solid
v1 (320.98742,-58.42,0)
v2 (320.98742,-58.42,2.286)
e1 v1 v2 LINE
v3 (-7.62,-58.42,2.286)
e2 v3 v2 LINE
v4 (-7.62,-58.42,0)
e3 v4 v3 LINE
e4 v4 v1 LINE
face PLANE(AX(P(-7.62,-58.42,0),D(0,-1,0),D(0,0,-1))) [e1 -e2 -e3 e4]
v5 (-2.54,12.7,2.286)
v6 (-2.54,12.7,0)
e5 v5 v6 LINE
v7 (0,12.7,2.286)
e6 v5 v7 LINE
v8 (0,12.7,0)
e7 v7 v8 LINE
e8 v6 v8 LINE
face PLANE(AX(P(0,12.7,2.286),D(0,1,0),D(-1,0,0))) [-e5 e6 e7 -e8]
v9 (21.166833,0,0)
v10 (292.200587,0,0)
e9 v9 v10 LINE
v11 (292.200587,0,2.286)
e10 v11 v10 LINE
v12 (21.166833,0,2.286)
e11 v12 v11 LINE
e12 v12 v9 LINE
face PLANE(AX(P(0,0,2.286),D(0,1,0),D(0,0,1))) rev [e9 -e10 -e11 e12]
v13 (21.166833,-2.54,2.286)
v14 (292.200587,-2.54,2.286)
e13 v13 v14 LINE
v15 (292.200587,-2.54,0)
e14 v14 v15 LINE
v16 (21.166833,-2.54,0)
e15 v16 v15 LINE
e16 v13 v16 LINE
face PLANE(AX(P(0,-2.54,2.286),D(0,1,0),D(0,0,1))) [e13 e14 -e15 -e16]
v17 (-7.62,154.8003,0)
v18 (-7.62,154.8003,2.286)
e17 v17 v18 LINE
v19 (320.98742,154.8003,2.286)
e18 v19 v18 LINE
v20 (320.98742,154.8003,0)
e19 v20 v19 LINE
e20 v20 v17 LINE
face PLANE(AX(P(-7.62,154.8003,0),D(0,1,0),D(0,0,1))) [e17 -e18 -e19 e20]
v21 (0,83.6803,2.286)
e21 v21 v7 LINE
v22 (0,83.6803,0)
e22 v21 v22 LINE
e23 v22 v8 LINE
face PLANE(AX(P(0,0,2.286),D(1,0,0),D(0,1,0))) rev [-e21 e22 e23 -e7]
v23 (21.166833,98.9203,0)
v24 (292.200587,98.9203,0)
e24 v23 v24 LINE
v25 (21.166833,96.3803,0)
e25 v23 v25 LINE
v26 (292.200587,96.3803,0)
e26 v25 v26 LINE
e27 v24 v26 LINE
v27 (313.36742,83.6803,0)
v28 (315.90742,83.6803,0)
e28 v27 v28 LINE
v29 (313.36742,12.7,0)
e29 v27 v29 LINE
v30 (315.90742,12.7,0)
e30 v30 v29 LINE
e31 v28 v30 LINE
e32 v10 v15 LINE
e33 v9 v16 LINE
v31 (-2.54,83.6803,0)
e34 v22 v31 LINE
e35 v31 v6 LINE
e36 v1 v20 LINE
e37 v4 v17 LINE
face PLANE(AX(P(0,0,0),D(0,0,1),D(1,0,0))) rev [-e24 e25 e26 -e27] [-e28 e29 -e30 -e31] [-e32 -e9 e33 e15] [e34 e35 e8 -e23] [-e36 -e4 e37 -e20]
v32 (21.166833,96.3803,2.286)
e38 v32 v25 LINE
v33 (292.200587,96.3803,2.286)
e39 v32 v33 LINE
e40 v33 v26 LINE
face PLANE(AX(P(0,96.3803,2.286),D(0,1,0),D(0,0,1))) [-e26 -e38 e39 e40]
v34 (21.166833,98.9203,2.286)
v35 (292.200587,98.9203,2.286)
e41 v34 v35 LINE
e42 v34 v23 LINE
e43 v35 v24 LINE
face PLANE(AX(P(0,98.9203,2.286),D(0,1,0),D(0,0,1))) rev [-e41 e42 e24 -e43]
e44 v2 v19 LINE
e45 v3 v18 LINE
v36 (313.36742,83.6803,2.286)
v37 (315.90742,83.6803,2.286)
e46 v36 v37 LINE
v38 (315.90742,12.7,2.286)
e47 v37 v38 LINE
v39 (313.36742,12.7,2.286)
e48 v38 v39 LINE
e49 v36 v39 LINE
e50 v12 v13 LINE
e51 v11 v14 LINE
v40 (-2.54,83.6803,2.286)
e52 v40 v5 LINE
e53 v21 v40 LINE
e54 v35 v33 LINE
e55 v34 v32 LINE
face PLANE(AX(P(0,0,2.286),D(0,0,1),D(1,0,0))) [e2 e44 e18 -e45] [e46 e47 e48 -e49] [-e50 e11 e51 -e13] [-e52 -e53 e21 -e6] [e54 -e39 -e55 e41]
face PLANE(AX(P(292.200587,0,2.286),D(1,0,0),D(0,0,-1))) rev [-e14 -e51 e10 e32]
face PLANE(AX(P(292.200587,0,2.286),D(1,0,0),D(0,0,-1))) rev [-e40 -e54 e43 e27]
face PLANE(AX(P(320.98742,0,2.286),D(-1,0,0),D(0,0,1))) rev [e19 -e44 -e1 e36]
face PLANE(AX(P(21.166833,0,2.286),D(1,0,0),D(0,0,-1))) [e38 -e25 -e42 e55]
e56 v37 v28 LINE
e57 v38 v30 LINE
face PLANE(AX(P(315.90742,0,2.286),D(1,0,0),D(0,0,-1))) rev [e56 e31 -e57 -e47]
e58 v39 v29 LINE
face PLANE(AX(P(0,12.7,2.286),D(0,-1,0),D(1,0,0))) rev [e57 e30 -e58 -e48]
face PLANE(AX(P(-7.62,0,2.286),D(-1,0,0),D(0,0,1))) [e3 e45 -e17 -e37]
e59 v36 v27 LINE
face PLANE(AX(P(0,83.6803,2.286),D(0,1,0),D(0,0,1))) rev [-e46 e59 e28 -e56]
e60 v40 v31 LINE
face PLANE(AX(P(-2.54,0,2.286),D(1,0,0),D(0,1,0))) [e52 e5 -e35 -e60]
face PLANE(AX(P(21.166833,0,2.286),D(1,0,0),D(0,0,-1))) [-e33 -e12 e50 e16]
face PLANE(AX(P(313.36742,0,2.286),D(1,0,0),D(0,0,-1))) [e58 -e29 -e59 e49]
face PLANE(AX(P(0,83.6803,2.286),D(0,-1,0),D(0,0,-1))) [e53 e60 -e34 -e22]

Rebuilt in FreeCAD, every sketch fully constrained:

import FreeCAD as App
import Part
import Sketcher
Q = App.Units.Quantity


def add_polygon(sketch, points):
    """Adds a closed chain of lines whose ends are joined by coincident constraints."""
    first, n = sketch.GeometryCount, len(points)
    for a, b in zip(points, points[1:] + points[:1]):
        sketch.addGeometry(Part.LineSegment(App.Vector(*a, 0), App.Vector(*b, 0)), False)
    for i in range(n):
        sketch.addConstraint(Sketcher.Constraint("Coincident", first + i, 2, first + (i + 1) % n, 1))

doc = App.newDocument("Part")
body = doc.addObject("PartDesign::Body", "Body")

sketch1 = body.newObject("Sketcher::SketchObject", "Sketch")
sketch1.AttachmentSupport = (doc.getObject("XY_Plane"), [""])
sketch1.MapMode = "FlatFace"
add_polygon(sketch1, [(-7.6, 104), (-7.6, -7.6), (321, -7.6), (321, 104)])
add_polygon(sketch1, [(292.2, -2.5), (21.2, -2.5), (21.2, 0), (292.2, 0)])
add_polygon(sketch1, [(0, 12.7), (-2.5, 12.7), (-2.5, 83.7), (0, 83.7)])
add_polygon(sketch1, [(292.2, 96.4), (21.2, 96.4), (21.2, 98.9), (292.2, 98.9)])
add_polygon(sketch1, [(315.9, 12.7), (313.4, 12.7), (313.4, 83.7), (315.9, 83.7)])
sketch1.addConstraint([
    Sketcher.Constraint("Vertical", 0),
    Sketcher.Constraint("Horizontal", 1),
    Sketcher.Constraint("Vertical", 2),
    Sketcher.Constraint("Horizontal", 3),
    Sketcher.Constraint("Horizontal", 4),
    Sketcher.Constraint("Vertical", 5),
    Sketcher.Constraint("Horizontal", 6),
    Sketcher.Constraint("Vertical", 7),
    Sketcher.Constraint("Horizontal", 8),
    Sketcher.Constraint("Vertical", 9),
    Sketcher.Constraint("Horizontal", 10),
    Sketcher.Constraint("Vertical", 11),
    Sketcher.Constraint("Horizontal", 12),
    Sketcher.Constraint("Vertical", 13),
    Sketcher.Constraint("Horizontal", 14),
    Sketcher.Constraint("Vertical", 15),
    Sketcher.Constraint("Horizontal", 16),
    Sketcher.Constraint("Vertical", 17),
    Sketcher.Constraint("Horizontal", 18),
    Sketcher.Constraint("Vertical", 19),
    Sketcher.Constraint("PointOnObject", 5, 2, -1),
    Sketcher.Constraint("PointOnObject", 10, 2, -2),
    Sketcher.Constraint("Horizontal", 11, 2, 16, 2),
    Sketcher.Constraint("Horizontal", 10, 2, 17, 2),
    Sketcher.Constraint("Vertical", 5, 2, 12, 2),
    Sketcher.Constraint("Vertical", 7, 2, 14, 2),
    Sketcher.Constraint("Equal", 10, 16),
    Sketcher.Constraint("Equal", 18, 5),
    Sketcher.Constraint("Equal", 7, 13),
    Sketcher.Constraint("DistanceX", 8, 2, 8, 1, Q("0.1 in")),
    Sketcher.Constraint("DistanceX", 0, 2, -1, 1, Q("0.3 in")),
    Sketcher.Constraint("DistanceY", 0, 2, -1, 1, Q("0.3 in")),
    Sketcher.Constraint("DistanceY", -1, 1, 8, 2, Q("0.5 in")),
    Sketcher.Constraint("DistanceY", 9, 2, 3, 2, Q("0.8 in")),
    Sketcher.Constraint("DistanceY", 10, 2, 12, 2, Q("0.5 in")),
    Sketcher.Constraint("DistanceX", 16, 2, 1, 2, Q("0.3 in")),
    Sketcher.Constraint("DistanceX", 1, 1, 1, 2, Q("12.9373 in")),
    Sketcher.Constraint("DistanceY", 0, 2, 0, 1, Q("4.3945 in")),
    Sketcher.Constraint("DistanceX", 4, 2, 4, 1, 271.033754),
    Sketcher.Constraint("DistanceX", -1, 1, 4, 2, 21.166833),
])
pad1 = body.newObject("PartDesign::Pad", "Pad")
pad1.Profile = sketch1
pad1.Length = Q("0.09 in")

sketch2 = body.newObject("Sketcher::SketchObject", "Sketch001")
sketch2.AttachmentSupport = (doc.getObject("XY_Plane"), [""])
sketch2.MapMode = "FlatFace"
sketch2.AttachmentOffset = App.Placement(App.Vector(0, 0, 0.09 * 25.4), App.Rotation())
add_polygon(sketch2, [(-8, 155), (-8, 104), (321, 104), (321, 155)])
add_polygon(sketch2, [(-8, -8), (-8, -58), (321, -58), (321, -8)])
sketch2.addConstraint([
    Sketcher.Constraint("Vertical", 0),
    Sketcher.Constraint("Horizontal", 1),
    Sketcher.Constraint("Vertical", 2),
    Sketcher.Constraint("Horizontal", 3),
    Sketcher.Constraint("Vertical", 4),
    Sketcher.Constraint("Horizontal", 5),
    Sketcher.Constraint("Vertical", 6),
    Sketcher.Constraint("Horizontal", 7),
    Sketcher.Constraint("Vertical", 3, 2, 4, 2),
    Sketcher.Constraint("Vertical", 2, 2, 5, 2),
    Sketcher.Constraint("Equal", 2, 4),
    Sketcher.Constraint("DistanceY", 0, 2, 0, 1, Q("2 in")),
    Sketcher.Constraint("DistanceX", 0, 2, -1, 1, Q("0.3 in")),
    Sketcher.Constraint("DistanceY", 4, 2, -1, 1, Q("2.3 in")),
    Sketcher.Constraint("DistanceX", 1, 1, 1, 2, Q("12.9373 in")),
    Sketcher.Constraint("DistanceY", -1, 1, 0, 2, Q("4.0945 in")),
])
pad2 = body.newObject("PartDesign::Pad", "Pad001")
pad2.Profile = sketch2
pad2.Type = "UpToLast"
pad2.Reversed = True

doc.recompute()
